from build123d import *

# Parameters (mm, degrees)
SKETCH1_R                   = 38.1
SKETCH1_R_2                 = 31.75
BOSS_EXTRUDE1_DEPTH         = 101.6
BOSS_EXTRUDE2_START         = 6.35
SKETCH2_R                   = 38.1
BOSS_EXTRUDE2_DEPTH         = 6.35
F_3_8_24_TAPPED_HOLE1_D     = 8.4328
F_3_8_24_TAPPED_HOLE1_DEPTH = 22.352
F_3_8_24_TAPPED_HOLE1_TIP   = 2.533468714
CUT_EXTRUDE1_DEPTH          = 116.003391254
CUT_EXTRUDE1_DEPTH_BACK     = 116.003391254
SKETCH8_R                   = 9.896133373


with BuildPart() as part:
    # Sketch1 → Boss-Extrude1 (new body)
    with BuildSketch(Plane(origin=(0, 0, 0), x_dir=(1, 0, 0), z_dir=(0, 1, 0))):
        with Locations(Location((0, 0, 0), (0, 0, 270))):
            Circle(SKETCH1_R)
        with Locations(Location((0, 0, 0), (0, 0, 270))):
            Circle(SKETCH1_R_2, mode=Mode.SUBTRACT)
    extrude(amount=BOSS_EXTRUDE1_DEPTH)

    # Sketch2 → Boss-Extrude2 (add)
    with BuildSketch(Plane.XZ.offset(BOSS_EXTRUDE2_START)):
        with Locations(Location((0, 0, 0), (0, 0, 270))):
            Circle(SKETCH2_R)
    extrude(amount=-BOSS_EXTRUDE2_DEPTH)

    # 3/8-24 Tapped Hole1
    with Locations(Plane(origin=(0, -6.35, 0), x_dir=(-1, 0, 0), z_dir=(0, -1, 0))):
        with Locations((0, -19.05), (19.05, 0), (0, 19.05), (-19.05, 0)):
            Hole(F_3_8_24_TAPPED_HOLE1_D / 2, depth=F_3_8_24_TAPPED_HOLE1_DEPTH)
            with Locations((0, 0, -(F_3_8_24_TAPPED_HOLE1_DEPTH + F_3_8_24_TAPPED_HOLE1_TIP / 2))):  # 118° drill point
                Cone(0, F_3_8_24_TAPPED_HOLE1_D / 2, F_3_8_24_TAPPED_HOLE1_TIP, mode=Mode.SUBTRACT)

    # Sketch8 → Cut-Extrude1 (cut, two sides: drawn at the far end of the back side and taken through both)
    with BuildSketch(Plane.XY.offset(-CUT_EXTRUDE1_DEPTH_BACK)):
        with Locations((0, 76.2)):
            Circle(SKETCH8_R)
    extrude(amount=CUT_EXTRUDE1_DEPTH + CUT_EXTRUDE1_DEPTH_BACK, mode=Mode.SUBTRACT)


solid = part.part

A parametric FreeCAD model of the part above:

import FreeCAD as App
import Part
import Sketcher
Q = App.Units.Quantity

doc = App.newDocument("Part")
params = doc.addObject("Spreadsheet::Sheet", "Params")
for row, (alias, value) in enumerate([
    ("sketch1_diameter", "3 in"),
    ("sketch1_diameter2", "2.5 in"),
    ("pad1_length", "4 in"),
    ("sketch2_diameter", "3 in"),
    ("pad2_length", "0.25 in"),
    ("sketch3_diameter", "0.332 in"),
    ("hole_diameter", "0.332 in"),
    ("hole_depth", "0.88 in"),
], start=1):
    params.set(f"A{row}", alias)
    params.set(f"B{row}", "=" + value)
    params.setAlias(f"B{row}", alias)

body = doc.addObject("PartDesign::Body", "Body")

# Sketch on XZ plane
sketch1 = body.newObject("Sketcher::SketchObject", "Sketch")
sketch1.AttachmentSupport = (doc.getObject("XZ_Plane"), [""])
sketch1.MapMode = "FlatFace"
sketch1.addGeometry([
    Part.Circle(App.Vector(0, 0, 0), App.Vector(0, 0, 1), 38),
    Part.Circle(App.Vector(0, 0, 0), App.Vector(0, 0, 1), 32),
], False)
sketch1.addConstraint([
    Sketcher.Constraint("Coincident", 0, 3, -1, 1),
    Sketcher.Constraint("Coincident", 1, 3, -1, 1),
    Sketcher.Constraint("Diameter", 0, Q("3 in")),
    Sketcher.Constraint("Diameter", 1, Q("2.5 in")),
])
sketch1.setExpression("Constraints[2]", "Params.sketch1_diameter")
sketch1.setExpression("Constraints[3]", "Params.sketch1_diameter2")
pad1 = body.newObject("PartDesign::Pad", "Pad")
pad1.Profile = sketch1
pad1.setExpression("Length", "Params.pad1_length")
pad1.Reversed = True

# Sketch on XZ plane
sketch2 = body.newObject("Sketcher::SketchObject", "Sketch001")
sketch2.AttachmentSupport = (doc.getObject("XZ_Plane"), [""])
sketch2.MapMode = "FlatFace"
sketch2.AttachmentOffset = App.Placement(App.Vector(0, 0, 0.25 * 25.4), App.Rotation())
sketch2.addGeometry(Part.Circle(App.Vector(0, 0, 0), App.Vector(0, 0, 1), 38), False)
sketch2.addConstraint([
    Sketcher.Constraint("Coincident", 0, 3, -1, 1),
    Sketcher.Constraint("Diameter", 0, Q("3 in")),
])
sketch2.setExpression("Constraints[1]", "Params.sketch2_diameter")
pad2 = body.newObject("PartDesign::Pad", "Pad001")
pad2.Profile = sketch2
pad2.setExpression("Length", "Params.pad2_length")
pad2.Reversed = True

# Sketch on XZ plane
sketch3 = body.newObject("Sketcher::SketchObject", "Sketch002")
sketch3.AttachmentSupport = (doc.getObject("XZ_Plane"), [""])
sketch3.MapMode = "FlatFace"
sketch3.AttachmentOffset = App.Placement(App.Vector(0, 0, 0.25 * 25.4), App.Rotation())
sketch3.addGeometry([
    Part.Circle(App.Vector(0, 19.1, 0), App.Vector(0, 0, 1), 4.2),
    Part.Circle(App.Vector(-19.1, 0, 0), App.Vector(0, 0, 1), 4.2),
    Part.Circle(App.Vector(0, -19.1, 0), App.Vector(0, 0, 1), 4.2),
    Part.Circle(App.Vector(19.1, 0, 0), App.Vector(0, 0, 1), 4.2),
], False)
sketch3.addConstraint([
    Sketcher.Constraint("Equal", 0, 1),
    Sketcher.Constraint("Equal", 1, 2),
    Sketcher.Constraint("Equal", 2, 3),
    Sketcher.Constraint("Symmetric", 0, 3, 2, 3, -1, 1),
    Sketcher.Constraint("Symmetric", 1, 3, 3, 3, -1, 1),
    Sketcher.Constraint("PointOnObject", 0, 3, -2),
    Sketcher.Constraint("PointOnObject", 1, 3, -1),
    Sketcher.Constraint("Diameter", 0, Q("0.332 in")),
    Sketcher.Constraint("DistanceY", 2, 3, 0, 3, Q("1.5 in")),
    Sketcher.Constraint("DistanceX", 1, 3, 3, 3, Q("1.5 in")),
])
sketch3.setExpression("Constraints[7]", "Params.sketch3_diameter")
doc.recompute()
hole = body.newObject("PartDesign::Hole", "Hole")
hole.Profile = sketch3
hole.ThreadType = "None"
hole.setExpression("Diameter", "Params.hole_diameter")
hole.DepthType = "Dimension"
hole.setExpression("Depth", "Params.hole_depth")
hole.DrillPoint = "Angled"
hole.DrillPointAngle = 118

# Sketch on XY plane
sketch4 = body.newObject("Sketcher::SketchObject", "Sketch003")
sketch4.AttachmentSupport = (doc.getObject("XY_Plane"), [""])
sketch4.MapMode = "FlatFace"
sketch4.addGeometry(Part.Circle(App.Vector(0, 76, 0), App.Vector(0, 0, 1), 10), False)
sketch4.addConstraint([
    Sketcher.Constraint("PointOnObject", 0, 3, -2),
    Sketcher.Constraint("DistanceY", -1, 1, 0, 3, Q("3 in")),
    Sketcher.Constraint("Diameter", 0, Q("19.792267 mm")),
])
pocket1 = body.newObject("PartDesign::Pocket", "Pocket")
pocket1.Profile = sketch4
pocket1.Type = "ThroughAll"
pocket1.Midplane = True

doc.recompute()
